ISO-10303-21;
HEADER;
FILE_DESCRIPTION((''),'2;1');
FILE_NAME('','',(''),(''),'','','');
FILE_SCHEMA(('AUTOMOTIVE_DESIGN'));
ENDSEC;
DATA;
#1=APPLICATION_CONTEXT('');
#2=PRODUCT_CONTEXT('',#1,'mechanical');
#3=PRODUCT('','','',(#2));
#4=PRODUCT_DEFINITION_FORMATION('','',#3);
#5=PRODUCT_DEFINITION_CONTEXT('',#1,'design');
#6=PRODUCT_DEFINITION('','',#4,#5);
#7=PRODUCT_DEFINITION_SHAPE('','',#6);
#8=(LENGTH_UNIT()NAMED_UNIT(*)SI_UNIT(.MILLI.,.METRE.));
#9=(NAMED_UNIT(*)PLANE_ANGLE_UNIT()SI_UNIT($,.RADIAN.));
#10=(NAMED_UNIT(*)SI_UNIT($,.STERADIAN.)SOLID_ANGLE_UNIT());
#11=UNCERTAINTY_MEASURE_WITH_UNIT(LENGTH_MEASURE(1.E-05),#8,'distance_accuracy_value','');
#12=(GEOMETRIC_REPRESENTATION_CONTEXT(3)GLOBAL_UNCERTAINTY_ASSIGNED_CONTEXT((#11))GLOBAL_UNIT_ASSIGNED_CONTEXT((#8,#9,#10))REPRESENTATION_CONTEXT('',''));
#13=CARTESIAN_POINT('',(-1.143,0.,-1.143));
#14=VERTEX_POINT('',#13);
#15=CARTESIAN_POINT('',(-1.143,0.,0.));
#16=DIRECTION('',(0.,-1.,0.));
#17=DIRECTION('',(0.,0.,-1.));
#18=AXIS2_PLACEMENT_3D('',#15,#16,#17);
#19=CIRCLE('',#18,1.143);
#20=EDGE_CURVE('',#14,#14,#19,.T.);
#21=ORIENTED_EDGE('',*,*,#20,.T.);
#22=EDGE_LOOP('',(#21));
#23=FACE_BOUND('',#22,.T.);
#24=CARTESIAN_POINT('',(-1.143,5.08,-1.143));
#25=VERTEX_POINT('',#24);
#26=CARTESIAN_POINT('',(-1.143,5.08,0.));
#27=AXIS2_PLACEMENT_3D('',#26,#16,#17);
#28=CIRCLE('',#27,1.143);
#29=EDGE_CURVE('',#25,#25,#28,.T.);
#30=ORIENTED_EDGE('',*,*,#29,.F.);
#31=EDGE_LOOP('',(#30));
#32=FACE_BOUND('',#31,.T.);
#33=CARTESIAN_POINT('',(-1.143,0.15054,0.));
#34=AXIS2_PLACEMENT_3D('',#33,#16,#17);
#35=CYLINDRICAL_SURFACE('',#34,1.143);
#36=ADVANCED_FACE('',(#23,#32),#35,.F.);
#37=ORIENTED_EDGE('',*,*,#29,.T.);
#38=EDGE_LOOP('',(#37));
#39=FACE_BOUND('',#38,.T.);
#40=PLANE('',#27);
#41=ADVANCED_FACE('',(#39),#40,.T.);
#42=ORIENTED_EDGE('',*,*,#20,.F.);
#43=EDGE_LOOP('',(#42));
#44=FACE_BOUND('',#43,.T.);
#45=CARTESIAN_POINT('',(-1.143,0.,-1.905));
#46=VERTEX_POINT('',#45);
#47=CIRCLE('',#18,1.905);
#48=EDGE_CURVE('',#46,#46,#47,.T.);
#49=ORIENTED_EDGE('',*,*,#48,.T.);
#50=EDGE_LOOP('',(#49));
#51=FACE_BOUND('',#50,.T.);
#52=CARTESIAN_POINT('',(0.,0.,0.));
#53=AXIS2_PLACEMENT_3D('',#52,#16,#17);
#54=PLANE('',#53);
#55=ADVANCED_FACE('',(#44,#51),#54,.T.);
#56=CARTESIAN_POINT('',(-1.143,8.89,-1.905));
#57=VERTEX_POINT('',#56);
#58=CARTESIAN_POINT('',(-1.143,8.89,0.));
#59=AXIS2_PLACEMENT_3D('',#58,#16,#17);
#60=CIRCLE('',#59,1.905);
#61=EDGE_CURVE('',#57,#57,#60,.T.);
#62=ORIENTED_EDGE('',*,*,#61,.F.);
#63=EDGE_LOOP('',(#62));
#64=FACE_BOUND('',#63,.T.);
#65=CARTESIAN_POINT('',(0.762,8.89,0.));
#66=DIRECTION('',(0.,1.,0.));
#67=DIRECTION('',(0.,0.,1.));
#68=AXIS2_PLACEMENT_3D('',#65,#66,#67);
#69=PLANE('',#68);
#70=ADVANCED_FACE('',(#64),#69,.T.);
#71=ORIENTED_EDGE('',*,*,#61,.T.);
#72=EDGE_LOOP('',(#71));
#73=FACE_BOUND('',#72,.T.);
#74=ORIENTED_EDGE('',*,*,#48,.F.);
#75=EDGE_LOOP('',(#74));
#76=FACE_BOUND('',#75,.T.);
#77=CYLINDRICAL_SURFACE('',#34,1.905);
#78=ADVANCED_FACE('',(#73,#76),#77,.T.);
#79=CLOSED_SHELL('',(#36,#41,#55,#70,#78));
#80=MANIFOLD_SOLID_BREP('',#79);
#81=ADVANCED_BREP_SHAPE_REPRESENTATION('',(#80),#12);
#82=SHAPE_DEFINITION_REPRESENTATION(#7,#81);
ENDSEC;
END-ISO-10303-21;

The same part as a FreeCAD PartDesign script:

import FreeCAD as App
import Part
import Sketcher
from FreeCAD import Vector
Q = App.Units.Quantity

doc = App.newDocument("Part")
body = doc.addObject("PartDesign::Body", "Body")

sketch1 = body.newObject("Sketcher::SketchObject", "Sketch")
sketch1.AttachmentSupport = (doc.getObject("XY_Plane"), [""])
sketch1.MapMode = "FlatFace"
sketch1.addGeometry(Part.LineSegment(Vector(0, 0, 0), Vector(0.762, 0, 0)), False)
sketch1.addGeometry(Part.LineSegment(Vector(0.762, 0, 0), Vector(0.762, 8.89, 0)), False)
sketch1.addGeometry(Part.LineSegment(Vector(0.762, 8.89, 0), Vector(-1.143, 8.89, 0)), False)
sketch1.addGeometry(Part.LineSegment(Vector(-1.143, 8.89, 0), Vector(-1.143, 5.08, 0)), False)
sketch1.addGeometry(Part.LineSegment(Vector(-1.143, 5.08, 0), Vector(0, 5.08, 0)), False)
sketch1.addGeometry(Part.LineSegment(Vector(0, 5.08, 0), Vector(0, 0, 0)), False)
sketch1.addGeometry(Part.LineSegment(Vector(-1.143, 0, 0), Vector(-1.143, 8.89, 0)), True)
sketch1.addConstraint(Sketcher.Constraint("Coincident", 0, 2, 1, 1))
sketch1.addConstraint(Sketcher.Constraint("Coincident", 1, 2, 2, 1))
sketch1.addConstraint(Sketcher.Constraint("Coincident", 2, 2, 3, 1))
sketch1.addConstraint(Sketcher.Constraint("Coincident", 3, 2, 4, 1))
sketch1.addConstraint(Sketcher.Constraint("Coincident", 4, 2, 5, 1))
sketch1.addConstraint(Sketcher.Constraint("Coincident", 5, 2, 0, 1))
sketch1.addConstraint(Sketcher.Constraint("Horizontal", 0))
sketch1.addConstraint(Sketcher.Constraint("Vertical", 1))
sketch1.addConstraint(Sketcher.Constraint("Horizontal", 2))
sketch1.addConstraint(Sketcher.Constraint("Vertical", 3))
sketch1.addConstraint(Sketcher.Constraint("Horizontal", 4))
sketch1.addConstraint(Sketcher.Constraint("Vertical", 5))
sketch1.addConstraint(Sketcher.Constraint("Vertical", 6))
sketch1.addConstraint(Sketcher.Constraint("Coincident", 5, 2, -1, 1))
sketch1.addConstraint(Sketcher.Constraint("Coincident", 6, 2, 2, 2))
sketch1.addConstraint(Sketcher.Constraint("PointOnObject", 6, 1, -1))
sketch1.addConstraint(Sketcher.Constraint("DistanceY", 5, 2, 5, 1, Q("0.2 in")))
sketch1.addConstraint(Sketcher.Constraint("DistanceX", 0, 1, 0, 2, Q("0.03 in")))
sketch1.addConstraint(Sketcher.Constraint("DistanceY", 1, 1, 1, 2, Q("0.35 in")))
sketch1.addConstraint(Sketcher.Constraint("DistanceX", 2, 2, 2, 1, Q("0.075 in")))
revolution = body.newObject("PartDesign::Revolution", "Revolution")
revolution.Profile = sketch1
revolution.ReferenceAxis = (sketch1, ["Axis0"])
revolution.Angle = 360

doc.recompute()
